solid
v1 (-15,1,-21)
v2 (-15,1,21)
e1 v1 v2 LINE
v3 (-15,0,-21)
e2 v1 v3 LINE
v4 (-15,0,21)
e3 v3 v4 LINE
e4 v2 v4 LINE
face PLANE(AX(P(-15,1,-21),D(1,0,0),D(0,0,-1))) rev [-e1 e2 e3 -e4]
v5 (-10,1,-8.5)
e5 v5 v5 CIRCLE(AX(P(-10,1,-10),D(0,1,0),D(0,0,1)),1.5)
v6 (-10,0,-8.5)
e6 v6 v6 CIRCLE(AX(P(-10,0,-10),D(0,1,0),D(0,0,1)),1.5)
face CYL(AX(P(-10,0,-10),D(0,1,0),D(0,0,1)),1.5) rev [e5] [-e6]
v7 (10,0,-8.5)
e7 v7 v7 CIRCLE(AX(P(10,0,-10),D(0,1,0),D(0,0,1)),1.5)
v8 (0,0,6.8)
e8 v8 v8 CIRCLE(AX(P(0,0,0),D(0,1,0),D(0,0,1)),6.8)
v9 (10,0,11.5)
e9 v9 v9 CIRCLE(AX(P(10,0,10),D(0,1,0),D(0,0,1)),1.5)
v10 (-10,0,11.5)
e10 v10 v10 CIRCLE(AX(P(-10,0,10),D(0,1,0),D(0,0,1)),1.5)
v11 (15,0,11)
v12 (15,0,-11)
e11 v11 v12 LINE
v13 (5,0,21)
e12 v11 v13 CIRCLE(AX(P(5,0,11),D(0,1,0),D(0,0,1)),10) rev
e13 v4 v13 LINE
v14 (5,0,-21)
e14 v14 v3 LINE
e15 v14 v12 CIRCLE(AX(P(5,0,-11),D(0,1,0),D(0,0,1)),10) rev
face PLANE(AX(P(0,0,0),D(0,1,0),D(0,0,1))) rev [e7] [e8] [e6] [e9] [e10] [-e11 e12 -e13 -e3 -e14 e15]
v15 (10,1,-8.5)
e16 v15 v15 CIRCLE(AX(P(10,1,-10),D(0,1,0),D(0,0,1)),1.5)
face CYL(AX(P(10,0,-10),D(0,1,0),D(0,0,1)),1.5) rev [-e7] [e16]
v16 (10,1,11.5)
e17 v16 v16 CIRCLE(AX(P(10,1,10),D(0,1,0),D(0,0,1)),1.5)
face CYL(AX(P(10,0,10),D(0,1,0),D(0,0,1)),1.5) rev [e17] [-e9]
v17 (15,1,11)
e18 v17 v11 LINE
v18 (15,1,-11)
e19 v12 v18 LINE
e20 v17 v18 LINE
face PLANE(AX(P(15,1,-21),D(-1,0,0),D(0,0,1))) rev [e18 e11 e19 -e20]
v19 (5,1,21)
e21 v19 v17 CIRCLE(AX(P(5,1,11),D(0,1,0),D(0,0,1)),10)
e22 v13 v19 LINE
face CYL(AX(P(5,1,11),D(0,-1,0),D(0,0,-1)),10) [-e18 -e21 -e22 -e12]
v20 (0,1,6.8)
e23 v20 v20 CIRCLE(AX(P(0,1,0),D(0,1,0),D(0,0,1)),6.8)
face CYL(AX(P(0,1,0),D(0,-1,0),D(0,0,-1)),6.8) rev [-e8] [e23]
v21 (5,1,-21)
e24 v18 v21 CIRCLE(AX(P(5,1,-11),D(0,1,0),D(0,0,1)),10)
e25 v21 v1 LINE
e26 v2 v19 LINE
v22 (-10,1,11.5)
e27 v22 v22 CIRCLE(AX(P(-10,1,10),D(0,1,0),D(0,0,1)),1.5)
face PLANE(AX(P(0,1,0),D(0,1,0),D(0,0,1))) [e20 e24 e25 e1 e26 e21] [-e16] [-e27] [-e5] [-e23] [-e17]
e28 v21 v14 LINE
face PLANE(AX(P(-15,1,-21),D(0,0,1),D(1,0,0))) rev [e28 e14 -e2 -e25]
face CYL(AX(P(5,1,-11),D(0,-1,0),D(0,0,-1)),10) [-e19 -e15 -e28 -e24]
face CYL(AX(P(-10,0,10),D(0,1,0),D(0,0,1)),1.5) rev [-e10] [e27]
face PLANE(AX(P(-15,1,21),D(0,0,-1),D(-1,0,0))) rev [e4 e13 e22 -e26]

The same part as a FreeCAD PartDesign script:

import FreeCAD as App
import Part
import Sketcher
from FreeCAD import Vector
Q = App.Units.Quantity


def edges_at(feature, points):
    """Names of the edges that pass closest to the given points."""
    edges = feature.Shape.Edges
    near = lambda p: min(range(len(edges)), key=lambda i: edges[i].distToShape(Part.Vertex(*p))[0])
    return sorted({f"Edge{near(p) + 1}" for p in points})

doc = App.newDocument("Part")
body = doc.addObject("PartDesign::Body", "Body")

# Sketch on XZ plane
sketch1 = body.newObject("Sketcher::SketchObject", "Sketch")
sketch1.AttachmentSupport = (doc.getObject("XZ_Plane"), [""])
sketch1.MapMode = "FlatFace"
sketch1.addGeometry([
    Part.LineSegment(Vector(-15, -21, 0), Vector(-15, 21, 0)),  # 0
    Part.LineSegment(Vector(-15, 21, 0), Vector(15, 21, 0)),  # 1
    Part.LineSegment(Vector(15, 21, 0), Vector(15, -21, 0)),  # 2
    Part.LineSegment(Vector(15, -21, 0), Vector(-15, -21, 0)),  # 3
    Part.Circle(Vector(0, 0, 0), Vector(0, 0, 1), 7),  # 4
], False)
sketch1.addConstraint([
    Sketcher.Constraint("Coincident", 0, 2, 1, 1),
    Sketcher.Constraint("Coincident", 1, 2, 2, 1),
    Sketcher.Constraint("Coincident", 2, 2, 3, 1),
    Sketcher.Constraint("Coincident", 3, 2, 0, 1),
    Sketcher.Constraint("Vertical", 0),
    Sketcher.Constraint("Horizontal", 1),
    Sketcher.Constraint("Vertical", 2),
    Sketcher.Constraint("Horizontal", 3),
    Sketcher.Constraint("Coincident", 4, 3, -1, 1),
    Sketcher.Constraint("Symmetric", 0, 2, 2, 2, -1, 1),
    Sketcher.Constraint("Diameter", 4, Q("13.6 mm")),
    Sketcher.Constraint("DistanceX", 1, 1, 1, 2, Q("30 mm")),
    Sketcher.Constraint("DistanceY", 0, 1, 0, 2, Q("42 mm")),
])
pad1 = body.newObject("PartDesign::Pad", "Pad")
pad1.Profile = sketch1
pad1.Length = 1
pad1.Reversed = True
doc.recompute()

fillet = body.newObject("PartDesign::Fillet", "Fillet")
fillet.Base = (pad1, edges_at(pad1, [(15, 0.5, 21), (15, 0.5, -21)]))
fillet.Radius = 10

# Sketch on XZ plane
sketch2 = body.newObject("Sketcher::SketchObject", "Sketch001")
sketch2.AttachmentSupport = (doc.getObject("XZ_Plane"), [""])
sketch2.MapMode = "FlatFace"
sketch2.AttachmentOffset = App.Placement(Vector(0, 0, -1), App.Rotation())
sketch2.addGeometry([
    Part.Circle(Vector(-10, -10, 0), Vector(0, 0, 1), 1.5),
    Part.Circle(Vector(10, -10, 0), Vector(0, 0, 1), 1.5),
    Part.Circle(Vector(10, 10, 0), Vector(0, 0, 1), 1.5),
    Part.Circle(Vector(-10, 10, 0), Vector(0, 0, 1), 1.5),
], False)
sketch2.addConstraint([
    Sketcher.Constraint("Equal", 0, 1),
    Sketcher.Constraint("Equal", 1, 2),
    Sketcher.Constraint("Equal", 2, 3),
    Sketcher.Constraint("Symmetric", 0, 3, 2, 3, -1, 1),
    Sketcher.Constraint("Symmetric", 1, 3, 3, 3, -1, 1),
    Sketcher.Constraint("Symmetric", 0, 3, 1, 3, -2),
    Sketcher.Constraint("Diameter", 0, Q("3 mm")),
    Sketcher.Constraint("DistanceX", 0, 3, -1, 1, Q("10 mm")),
    Sketcher.Constraint("DistanceY", 0, 3, -1, 1, Q("10 mm")),
])
pocket1 = body.newObject("PartDesign::Pocket", "Pocket")
pocket1.Profile = sketch2
pocket1.Length = 1
pocket1.Reversed = True

doc.recompute()
